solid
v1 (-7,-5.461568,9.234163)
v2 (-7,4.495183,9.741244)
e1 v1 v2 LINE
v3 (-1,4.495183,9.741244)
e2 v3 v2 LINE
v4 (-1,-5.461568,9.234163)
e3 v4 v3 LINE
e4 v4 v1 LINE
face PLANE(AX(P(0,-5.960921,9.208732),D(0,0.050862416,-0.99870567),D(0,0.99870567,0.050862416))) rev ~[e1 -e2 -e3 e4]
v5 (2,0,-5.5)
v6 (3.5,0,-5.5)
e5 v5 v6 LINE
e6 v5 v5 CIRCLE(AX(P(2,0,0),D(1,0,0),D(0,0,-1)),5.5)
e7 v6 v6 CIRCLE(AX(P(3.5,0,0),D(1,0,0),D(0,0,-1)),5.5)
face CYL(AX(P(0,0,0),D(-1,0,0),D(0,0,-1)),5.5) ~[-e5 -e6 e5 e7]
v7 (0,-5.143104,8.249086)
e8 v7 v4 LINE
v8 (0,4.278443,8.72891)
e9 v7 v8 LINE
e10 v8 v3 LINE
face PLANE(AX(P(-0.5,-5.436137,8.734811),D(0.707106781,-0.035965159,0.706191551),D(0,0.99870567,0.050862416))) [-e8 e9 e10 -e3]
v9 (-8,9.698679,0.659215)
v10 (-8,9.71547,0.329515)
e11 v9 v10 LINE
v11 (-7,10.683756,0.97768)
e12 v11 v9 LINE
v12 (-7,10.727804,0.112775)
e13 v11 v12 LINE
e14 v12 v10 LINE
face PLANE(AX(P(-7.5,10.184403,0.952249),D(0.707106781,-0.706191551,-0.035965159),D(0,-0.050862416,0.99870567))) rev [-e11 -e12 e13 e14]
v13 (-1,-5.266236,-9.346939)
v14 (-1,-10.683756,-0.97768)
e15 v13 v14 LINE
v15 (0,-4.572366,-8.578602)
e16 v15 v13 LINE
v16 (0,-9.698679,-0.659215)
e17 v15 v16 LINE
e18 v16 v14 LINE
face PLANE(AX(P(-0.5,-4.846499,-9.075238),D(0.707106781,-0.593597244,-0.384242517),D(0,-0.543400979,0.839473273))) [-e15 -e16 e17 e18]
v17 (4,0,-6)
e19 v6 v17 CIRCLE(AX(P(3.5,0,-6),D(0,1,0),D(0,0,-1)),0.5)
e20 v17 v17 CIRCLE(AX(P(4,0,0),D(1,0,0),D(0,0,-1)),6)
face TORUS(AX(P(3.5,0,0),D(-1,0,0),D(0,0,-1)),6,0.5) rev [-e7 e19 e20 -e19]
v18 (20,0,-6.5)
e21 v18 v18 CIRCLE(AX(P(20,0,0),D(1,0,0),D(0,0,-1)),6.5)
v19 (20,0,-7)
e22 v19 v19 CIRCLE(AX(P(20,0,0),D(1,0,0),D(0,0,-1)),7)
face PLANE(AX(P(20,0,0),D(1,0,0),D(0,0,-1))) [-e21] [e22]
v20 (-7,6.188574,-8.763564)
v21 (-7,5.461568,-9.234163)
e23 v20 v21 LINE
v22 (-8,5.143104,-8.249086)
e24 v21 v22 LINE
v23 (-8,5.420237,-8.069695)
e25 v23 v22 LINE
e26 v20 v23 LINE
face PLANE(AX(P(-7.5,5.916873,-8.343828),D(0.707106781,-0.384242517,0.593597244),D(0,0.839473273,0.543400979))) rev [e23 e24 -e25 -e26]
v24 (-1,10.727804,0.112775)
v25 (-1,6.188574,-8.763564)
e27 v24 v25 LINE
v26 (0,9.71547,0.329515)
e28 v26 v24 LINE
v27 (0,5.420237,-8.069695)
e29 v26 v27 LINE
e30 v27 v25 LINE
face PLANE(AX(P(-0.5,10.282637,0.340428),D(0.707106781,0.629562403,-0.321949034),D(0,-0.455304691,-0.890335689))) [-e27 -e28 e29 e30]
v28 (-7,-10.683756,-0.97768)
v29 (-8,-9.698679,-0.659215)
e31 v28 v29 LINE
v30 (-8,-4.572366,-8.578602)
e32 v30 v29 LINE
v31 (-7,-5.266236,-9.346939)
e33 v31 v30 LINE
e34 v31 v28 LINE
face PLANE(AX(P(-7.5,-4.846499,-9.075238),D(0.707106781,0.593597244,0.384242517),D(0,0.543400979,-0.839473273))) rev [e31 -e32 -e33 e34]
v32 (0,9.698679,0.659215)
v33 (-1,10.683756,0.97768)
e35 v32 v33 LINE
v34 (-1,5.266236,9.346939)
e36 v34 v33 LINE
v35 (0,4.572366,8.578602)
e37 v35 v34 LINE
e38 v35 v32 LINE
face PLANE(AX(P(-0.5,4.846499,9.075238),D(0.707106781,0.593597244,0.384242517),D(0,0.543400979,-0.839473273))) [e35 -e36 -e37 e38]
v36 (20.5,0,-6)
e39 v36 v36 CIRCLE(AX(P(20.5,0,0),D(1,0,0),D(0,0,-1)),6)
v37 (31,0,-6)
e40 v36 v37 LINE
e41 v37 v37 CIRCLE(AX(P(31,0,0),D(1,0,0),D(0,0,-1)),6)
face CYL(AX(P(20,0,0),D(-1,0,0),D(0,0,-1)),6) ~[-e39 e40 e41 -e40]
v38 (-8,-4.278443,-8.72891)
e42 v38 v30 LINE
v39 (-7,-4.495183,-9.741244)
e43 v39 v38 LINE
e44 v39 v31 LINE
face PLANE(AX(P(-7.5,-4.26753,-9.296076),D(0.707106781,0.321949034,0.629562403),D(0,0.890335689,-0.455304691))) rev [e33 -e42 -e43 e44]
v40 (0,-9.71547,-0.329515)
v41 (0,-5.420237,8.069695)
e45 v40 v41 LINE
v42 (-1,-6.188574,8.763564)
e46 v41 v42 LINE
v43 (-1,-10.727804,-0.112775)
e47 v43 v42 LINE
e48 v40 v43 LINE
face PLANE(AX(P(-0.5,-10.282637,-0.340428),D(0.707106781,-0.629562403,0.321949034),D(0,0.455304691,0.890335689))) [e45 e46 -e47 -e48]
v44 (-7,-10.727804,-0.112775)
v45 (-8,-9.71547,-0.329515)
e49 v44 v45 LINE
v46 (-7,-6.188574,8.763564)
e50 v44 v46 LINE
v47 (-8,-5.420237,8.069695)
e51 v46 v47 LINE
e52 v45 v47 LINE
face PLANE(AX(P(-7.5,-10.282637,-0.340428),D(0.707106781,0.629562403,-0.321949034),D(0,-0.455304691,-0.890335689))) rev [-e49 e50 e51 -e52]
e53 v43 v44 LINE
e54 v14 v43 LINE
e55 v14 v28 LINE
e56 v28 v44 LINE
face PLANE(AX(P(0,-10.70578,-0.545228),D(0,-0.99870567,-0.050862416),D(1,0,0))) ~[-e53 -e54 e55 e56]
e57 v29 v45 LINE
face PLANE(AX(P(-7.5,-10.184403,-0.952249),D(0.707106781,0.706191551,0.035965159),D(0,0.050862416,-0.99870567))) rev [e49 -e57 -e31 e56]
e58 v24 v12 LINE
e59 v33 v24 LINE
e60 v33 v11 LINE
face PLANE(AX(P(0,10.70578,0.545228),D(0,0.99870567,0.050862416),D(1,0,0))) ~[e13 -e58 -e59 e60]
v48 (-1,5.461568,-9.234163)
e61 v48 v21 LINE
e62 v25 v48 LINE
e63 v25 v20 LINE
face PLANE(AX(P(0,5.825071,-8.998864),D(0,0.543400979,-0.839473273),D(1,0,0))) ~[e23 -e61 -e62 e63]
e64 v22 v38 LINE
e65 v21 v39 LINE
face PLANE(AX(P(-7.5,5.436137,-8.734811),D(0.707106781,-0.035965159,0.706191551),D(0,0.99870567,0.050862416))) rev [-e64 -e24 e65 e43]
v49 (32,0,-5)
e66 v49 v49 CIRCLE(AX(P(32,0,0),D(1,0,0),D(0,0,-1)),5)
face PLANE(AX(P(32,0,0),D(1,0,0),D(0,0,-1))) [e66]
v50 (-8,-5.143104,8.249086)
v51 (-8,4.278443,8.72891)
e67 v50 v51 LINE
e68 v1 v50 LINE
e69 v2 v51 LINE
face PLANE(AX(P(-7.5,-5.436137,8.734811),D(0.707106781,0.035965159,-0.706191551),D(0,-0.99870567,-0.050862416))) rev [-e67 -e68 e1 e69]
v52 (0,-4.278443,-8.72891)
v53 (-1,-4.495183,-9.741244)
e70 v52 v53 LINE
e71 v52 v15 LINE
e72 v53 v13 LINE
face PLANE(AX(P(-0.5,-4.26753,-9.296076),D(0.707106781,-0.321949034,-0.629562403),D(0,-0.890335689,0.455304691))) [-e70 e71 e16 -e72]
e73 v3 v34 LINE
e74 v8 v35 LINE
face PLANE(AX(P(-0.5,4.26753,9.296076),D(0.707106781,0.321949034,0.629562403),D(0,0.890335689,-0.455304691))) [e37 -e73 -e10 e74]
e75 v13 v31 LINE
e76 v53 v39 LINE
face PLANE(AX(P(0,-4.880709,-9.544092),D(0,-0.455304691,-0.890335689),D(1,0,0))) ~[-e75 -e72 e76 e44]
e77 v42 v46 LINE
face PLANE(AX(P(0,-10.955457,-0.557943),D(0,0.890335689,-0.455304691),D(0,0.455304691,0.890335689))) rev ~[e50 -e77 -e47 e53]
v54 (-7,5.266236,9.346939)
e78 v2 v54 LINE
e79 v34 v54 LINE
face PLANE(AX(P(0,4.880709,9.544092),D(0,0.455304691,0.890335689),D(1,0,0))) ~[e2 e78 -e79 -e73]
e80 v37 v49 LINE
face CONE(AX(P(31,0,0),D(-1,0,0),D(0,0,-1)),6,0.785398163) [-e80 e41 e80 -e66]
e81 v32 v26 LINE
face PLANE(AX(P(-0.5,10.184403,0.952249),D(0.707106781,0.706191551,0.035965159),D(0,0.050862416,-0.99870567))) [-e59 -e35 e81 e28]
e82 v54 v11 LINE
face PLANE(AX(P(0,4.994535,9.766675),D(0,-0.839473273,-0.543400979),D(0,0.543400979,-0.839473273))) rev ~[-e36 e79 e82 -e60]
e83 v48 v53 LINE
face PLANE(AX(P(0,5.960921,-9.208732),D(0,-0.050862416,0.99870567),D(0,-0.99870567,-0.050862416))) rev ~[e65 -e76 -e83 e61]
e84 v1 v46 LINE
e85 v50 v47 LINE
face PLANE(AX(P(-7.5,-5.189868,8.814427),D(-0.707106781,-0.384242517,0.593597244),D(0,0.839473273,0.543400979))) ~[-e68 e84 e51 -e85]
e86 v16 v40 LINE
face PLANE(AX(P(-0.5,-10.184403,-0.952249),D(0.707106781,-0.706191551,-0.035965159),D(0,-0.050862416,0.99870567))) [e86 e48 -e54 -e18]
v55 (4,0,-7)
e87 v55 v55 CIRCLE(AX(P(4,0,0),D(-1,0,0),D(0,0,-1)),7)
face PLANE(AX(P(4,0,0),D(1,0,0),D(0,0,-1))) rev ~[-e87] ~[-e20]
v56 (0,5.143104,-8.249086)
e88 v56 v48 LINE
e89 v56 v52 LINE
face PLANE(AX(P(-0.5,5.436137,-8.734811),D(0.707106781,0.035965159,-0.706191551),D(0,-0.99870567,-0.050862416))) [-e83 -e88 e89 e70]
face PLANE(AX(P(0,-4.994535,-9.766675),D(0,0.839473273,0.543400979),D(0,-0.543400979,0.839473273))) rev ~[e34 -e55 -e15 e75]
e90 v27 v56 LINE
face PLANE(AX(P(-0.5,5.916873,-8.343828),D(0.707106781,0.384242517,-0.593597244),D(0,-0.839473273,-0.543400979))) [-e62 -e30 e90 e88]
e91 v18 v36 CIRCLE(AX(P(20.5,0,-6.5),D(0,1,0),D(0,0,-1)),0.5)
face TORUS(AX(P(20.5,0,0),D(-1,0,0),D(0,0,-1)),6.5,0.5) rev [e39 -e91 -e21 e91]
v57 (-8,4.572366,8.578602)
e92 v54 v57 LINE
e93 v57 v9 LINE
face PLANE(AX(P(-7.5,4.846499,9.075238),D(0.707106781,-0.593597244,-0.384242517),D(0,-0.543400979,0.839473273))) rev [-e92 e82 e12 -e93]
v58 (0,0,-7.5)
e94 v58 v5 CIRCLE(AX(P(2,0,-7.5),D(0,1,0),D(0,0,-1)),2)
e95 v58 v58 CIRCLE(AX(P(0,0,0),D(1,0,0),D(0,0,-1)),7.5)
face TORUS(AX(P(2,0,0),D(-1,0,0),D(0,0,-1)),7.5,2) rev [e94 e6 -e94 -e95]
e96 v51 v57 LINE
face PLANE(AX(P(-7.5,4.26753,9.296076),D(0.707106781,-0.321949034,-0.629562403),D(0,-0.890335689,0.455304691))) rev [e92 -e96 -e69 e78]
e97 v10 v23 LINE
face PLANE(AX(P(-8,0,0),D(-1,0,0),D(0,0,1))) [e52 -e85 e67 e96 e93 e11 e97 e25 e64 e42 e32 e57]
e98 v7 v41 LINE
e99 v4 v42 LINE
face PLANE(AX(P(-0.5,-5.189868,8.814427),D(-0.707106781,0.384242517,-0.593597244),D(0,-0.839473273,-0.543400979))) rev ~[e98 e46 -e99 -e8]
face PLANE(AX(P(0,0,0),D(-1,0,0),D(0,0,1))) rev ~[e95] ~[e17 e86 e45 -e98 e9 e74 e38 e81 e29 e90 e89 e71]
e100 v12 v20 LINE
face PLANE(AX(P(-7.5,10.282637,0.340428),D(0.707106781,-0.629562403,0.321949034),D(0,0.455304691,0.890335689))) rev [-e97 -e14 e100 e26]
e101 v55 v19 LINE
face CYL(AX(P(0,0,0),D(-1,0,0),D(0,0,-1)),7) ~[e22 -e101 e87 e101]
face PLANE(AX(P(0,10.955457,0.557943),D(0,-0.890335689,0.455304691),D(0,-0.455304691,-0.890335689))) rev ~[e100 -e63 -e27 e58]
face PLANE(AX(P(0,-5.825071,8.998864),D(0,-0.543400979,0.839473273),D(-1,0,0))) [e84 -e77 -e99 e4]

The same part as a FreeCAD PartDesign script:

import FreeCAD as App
import Part
import Sketcher
from FreeCAD import Vector
Q = App.Units.Quantity


def edges_at(feature, points):
    """Names of the edges that pass closest to the given points."""
    edges = feature.Shape.Edges
    near = lambda p: min(range(len(edges)), key=lambda i: edges[i].distToShape(Part.Vertex(*p))[0])
    return sorted({f"Edge{near(p) + 1}" for p in points})

doc = App.newDocument("Part")
body = doc.addObject("PartDesign::Body", "Body")

# Sketch on YZ plane
sketch1 = doc.addObject("Sketcher::SketchObject", "Sketch")
body.addObject(sketch1)
sketch1.AttachmentSupport = (doc.YZ_Plane, [""])
sketch1.MapMode = "FlatFace"
sketch1.addGeometry(Part.Circle(Vector(0, 0, 0), Vector(0, 0, 1), 7), False)
sketch1.addConstraint([
    Sketcher.Constraint("Coincident", 0, 3, -1, 1),
    Sketcher.Constraint("Diameter", 0, Q("14 mm")),
])
pad1 = doc.addObject("PartDesign::Pad", "Pad")
body.addObject(pad1)
pad1.Profile = sketch1
pad1.Length = 20

# Sketch on YZ plane
sketch2 = doc.addObject("Sketcher::SketchObject", "Sketch001")
body.addObject(sketch2)
sketch2.AttachmentSupport = (doc.YZ_Plane, [""])
sketch2.MapMode = "FlatFace"
sketch2.AttachmentOffset = App.Placement(Vector(0, 0, 20), App.Rotation())
sketch2.addGeometry(Part.Circle(Vector(0, 0, 0), Vector(0, 0, 1), 6), False)
sketch2.addConstraint([
    Sketcher.Constraint("Coincident", 0, 3, -1, 1),
    Sketcher.Constraint("Diameter", 0, Q("12 mm")),
])
pad2 = doc.addObject("PartDesign::Pad", "Pad001")
body.addObject(pad2)
pad2.Profile = sketch2
pad2.Length = 12

# Sketch on YZ plane
sketch3 = doc.addObject("Sketcher::SketchObject", "Sketch002")
body.addObject(sketch3)
sketch3.AttachmentSupport = (doc.YZ_Plane, [""])
sketch3.MapMode = "FlatFace"
sketch3.addGeometry([
    Part.LineSegment(Vector(-6, 9, 0), Vector(5, 10, 0)),  # 0
    Part.LineSegment(Vector(5, 10, 0), Vector(11, 1, 0)),  # 1
    Part.LineSegment(Vector(11, 1, 0), Vector(6, -9, 0)),  # 2
    Part.LineSegment(Vector(6, -9, 0), Vector(-5, -10, 0)),  # 3
    Part.LineSegment(Vector(-5, -10, 0), Vector(-11, -1, 0)),  # 4
    Part.LineSegment(Vector(-11, -1, 0), Vector(-6, 9, 0)),  # 5
], False)
sketch3.addConstraint([
    Sketcher.Constraint("Coincident", 0, 2, 1, 1),
    Sketcher.Constraint("Coincident", 1, 2, 2, 1),
    Sketcher.Constraint("Coincident", 2, 2, 3, 1),
    Sketcher.Constraint("Coincident", 3, 2, 4, 1),
    Sketcher.Constraint("Coincident", 4, 2, 5, 1),
    Sketcher.Constraint("Coincident", 5, 2, 0, 1),
    Sketcher.Constraint("Symmetric", 0, 2, 3, 2, -1, 1),
    Sketcher.Constraint("Symmetric", 1, 2, 4, 2, -1, 1),
    Sketcher.Constraint("Symmetric", 2, 2, 5, 2, -1, 1),
    Sketcher.Constraint("Equal", 0, 1),
    Sketcher.Constraint("Equal", 1, 2),
    Sketcher.Constraint("DistanceX", -1, 1, 2, 2, Q("5.960921 mm")),
    Sketcher.Constraint("DistanceX", 0, 2, 1, 2, Q("5.960921 mm")),
    Sketcher.Constraint("DistanceY", 3, 2, 1, 2, Q("10.324619 mm")),
    Sketcher.Constraint("DistanceX", 3, 2, 0, 2, Q("9.989071 mm")),
])
pad3 = doc.addObject("PartDesign::Pad", "Pad002")
body.addObject(pad3)
pad3.Profile = sketch3
pad3.Length = 8
pad3.Reversed = True

# Sketch on YZ plane
sketch4 = doc.addObject("Sketcher::SketchObject", "Sketch003")
body.addObject(sketch4)
sketch4.AttachmentSupport = (doc.YZ_Plane, [""])
sketch4.MapMode = "FlatFace"
sketch4.addGeometry([
    Part.LineSegment(Vector(17, 16, 0), Vector(-17, 16, 0)),  # 0
    Part.LineSegment(Vector(-17, 16, 0), Vector(-17, -16, 0)),  # 1
    Part.LineSegment(Vector(-17, -16, 0), Vector(17, -16, 0)),  # 2
    Part.LineSegment(Vector(17, -16, 0), Vector(17, 16, 0)),  # 3
    Part.Circle(Vector(0, 0, 0), Vector(0, 0, 1), 6),  # 4
], False)
sketch4.addConstraint([
    Sketcher.Constraint("Coincident", 0, 2, 1, 1),
    Sketcher.Constraint("Coincident", 1, 2, 2, 1),
    Sketcher.Constraint("Coincident", 2, 2, 3, 1),
    Sketcher.Constraint("Coincident", 3, 2, 0, 1),
    Sketcher.Constraint("Horizontal", 0),
    Sketcher.Constraint("Vertical", 1),
    Sketcher.Constraint("Horizontal", 2),
    Sketcher.Constraint("Vertical", 3),
    Sketcher.Constraint("Coincident", 4, 3, -1, 1),
    Sketcher.Constraint("Symmetric", 0, 2, 2, 2, -1, 1),
    Sketcher.Constraint("Diameter", 4, Q("11 mm")),
    Sketcher.Constraint("DistanceX", 0, 2, 0, 1, Q("33.832 mm")),
    Sketcher.Constraint("DistanceY", 1, 2, 1, 1, Q("31.456 mm")),
])
pocket1 = doc.addObject("PartDesign::Pocket", "Pocket")
body.addObject(pocket1)
pocket1.Profile = sketch4
pocket1.Length = 4
pocket1.Reversed = True
doc.recompute()

chamfer = doc.addObject("PartDesign::Chamfer", "Chamfer")
body.addObject(chamfer)
chamfer.Base = (pocket1, edges_at(pocket1, [(-4, -5.961, 9.209)]))
chamfer.Size = 0.5
doc.recompute()

chamfer2 = doc.addObject("PartDesign::Chamfer", "Chamfer001")
body.addObject(chamfer2)
chamfer2.Base = (chamfer, edges_at(chamfer, [(-4, 4.995, 9.767)]))
chamfer2.Size = 0.5
doc.recompute()

chamfer3 = doc.addObject("PartDesign::Chamfer", "Chamfer002")
body.addObject(chamfer3)
chamfer3.Base = (chamfer2, edges_at(chamfer2, [(-4, 10.955, 0.558)]))
chamfer3.Size = 0.5
doc.recompute()

chamfer4 = doc.addObject("PartDesign::Chamfer", "Chamfer003")
body.addObject(chamfer4)
chamfer4.Base = (chamfer3, edges_at(chamfer3, [(-4, 5.961, -9.209)]))
chamfer4.Size = 0.5
doc.recompute()

chamfer5 = doc.addObject("PartDesign::Chamfer", "Chamfer004")
body.addObject(chamfer5)
chamfer5.Base = (chamfer4, edges_at(chamfer4, [(-4, -4.995, -9.767)]))
chamfer5.Size = 0.5
doc.recompute()

chamfer6 = doc.addObject("PartDesign::Chamfer", "Chamfer005")
body.addObject(chamfer6)
chamfer6.Base = (chamfer5, edges_at(chamfer5, [(-4, -10.955, -0.558)]))
chamfer6.Size = 0.5
doc.recompute()

chamfer7 = doc.addObject("PartDesign::Chamfer", "Chamfer006")
body.addObject(chamfer7)
chamfer7.Base = (chamfer6, edges_at(chamfer6, [
    (0, -8.458, 4.325),
    (-8, -8.458, 4.325),
    (0, -7.975, -5.162),
    (0, 0.483, -9.488),
    (0, 8.458, -4.325),
    (0, 7.975, 5.162),
    (0, -0.483, 9.488),
    (0, 4.881, 9.544),
    (0, -5.825, 8.999),
    (0, 10.706, 0.545),
    (0, 5.825, -8.999),
    (0, -4.881, -9.544),
    (0, -10.706, -0.545),
    (-8, -7.975, -5.162),
    (-8, -0.483, 9.488),
    (-8, 7.975, 5.162),
    (-8, 8.458, -4.325),
    (-8, 0.483, -9.488),
    (-8, 4.881, 9.544),
    (-8, -5.825, 8.999),
    (-8, 10.706, 0.545),
    (-8, 5.825, -8.999),
    (-8, -4.881, -9.544),
    (-8, -10.706, -0.545),
]))
chamfer7.Size = 1
doc.recompute()

fillet = doc.addObject("PartDesign::Fillet", "Fillet")
body.addObject(fillet)
fillet.Base = (chamfer7, edges_at(chamfer7, [(0, 0, 5.5)]))
fillet.Radius = 2
doc.recompute()

fillet2 = doc.addObject("PartDesign::Fillet", "Fillet001")
body.addObject(fillet2)
fillet2.Base = (fillet, edges_at(fillet, [(4, 0, 5.5), (20, 0, 6)]))
fillet2.Radius = 0.5
doc.recompute()

chamfer8 = doc.addObject("PartDesign::Chamfer", "Chamfer007")
body.addObject(chamfer8)
chamfer8.Base = (fillet2, edges_at(fillet2, [(32, 0, 6)]))
chamfer8.Size = 1

doc.recompute()
